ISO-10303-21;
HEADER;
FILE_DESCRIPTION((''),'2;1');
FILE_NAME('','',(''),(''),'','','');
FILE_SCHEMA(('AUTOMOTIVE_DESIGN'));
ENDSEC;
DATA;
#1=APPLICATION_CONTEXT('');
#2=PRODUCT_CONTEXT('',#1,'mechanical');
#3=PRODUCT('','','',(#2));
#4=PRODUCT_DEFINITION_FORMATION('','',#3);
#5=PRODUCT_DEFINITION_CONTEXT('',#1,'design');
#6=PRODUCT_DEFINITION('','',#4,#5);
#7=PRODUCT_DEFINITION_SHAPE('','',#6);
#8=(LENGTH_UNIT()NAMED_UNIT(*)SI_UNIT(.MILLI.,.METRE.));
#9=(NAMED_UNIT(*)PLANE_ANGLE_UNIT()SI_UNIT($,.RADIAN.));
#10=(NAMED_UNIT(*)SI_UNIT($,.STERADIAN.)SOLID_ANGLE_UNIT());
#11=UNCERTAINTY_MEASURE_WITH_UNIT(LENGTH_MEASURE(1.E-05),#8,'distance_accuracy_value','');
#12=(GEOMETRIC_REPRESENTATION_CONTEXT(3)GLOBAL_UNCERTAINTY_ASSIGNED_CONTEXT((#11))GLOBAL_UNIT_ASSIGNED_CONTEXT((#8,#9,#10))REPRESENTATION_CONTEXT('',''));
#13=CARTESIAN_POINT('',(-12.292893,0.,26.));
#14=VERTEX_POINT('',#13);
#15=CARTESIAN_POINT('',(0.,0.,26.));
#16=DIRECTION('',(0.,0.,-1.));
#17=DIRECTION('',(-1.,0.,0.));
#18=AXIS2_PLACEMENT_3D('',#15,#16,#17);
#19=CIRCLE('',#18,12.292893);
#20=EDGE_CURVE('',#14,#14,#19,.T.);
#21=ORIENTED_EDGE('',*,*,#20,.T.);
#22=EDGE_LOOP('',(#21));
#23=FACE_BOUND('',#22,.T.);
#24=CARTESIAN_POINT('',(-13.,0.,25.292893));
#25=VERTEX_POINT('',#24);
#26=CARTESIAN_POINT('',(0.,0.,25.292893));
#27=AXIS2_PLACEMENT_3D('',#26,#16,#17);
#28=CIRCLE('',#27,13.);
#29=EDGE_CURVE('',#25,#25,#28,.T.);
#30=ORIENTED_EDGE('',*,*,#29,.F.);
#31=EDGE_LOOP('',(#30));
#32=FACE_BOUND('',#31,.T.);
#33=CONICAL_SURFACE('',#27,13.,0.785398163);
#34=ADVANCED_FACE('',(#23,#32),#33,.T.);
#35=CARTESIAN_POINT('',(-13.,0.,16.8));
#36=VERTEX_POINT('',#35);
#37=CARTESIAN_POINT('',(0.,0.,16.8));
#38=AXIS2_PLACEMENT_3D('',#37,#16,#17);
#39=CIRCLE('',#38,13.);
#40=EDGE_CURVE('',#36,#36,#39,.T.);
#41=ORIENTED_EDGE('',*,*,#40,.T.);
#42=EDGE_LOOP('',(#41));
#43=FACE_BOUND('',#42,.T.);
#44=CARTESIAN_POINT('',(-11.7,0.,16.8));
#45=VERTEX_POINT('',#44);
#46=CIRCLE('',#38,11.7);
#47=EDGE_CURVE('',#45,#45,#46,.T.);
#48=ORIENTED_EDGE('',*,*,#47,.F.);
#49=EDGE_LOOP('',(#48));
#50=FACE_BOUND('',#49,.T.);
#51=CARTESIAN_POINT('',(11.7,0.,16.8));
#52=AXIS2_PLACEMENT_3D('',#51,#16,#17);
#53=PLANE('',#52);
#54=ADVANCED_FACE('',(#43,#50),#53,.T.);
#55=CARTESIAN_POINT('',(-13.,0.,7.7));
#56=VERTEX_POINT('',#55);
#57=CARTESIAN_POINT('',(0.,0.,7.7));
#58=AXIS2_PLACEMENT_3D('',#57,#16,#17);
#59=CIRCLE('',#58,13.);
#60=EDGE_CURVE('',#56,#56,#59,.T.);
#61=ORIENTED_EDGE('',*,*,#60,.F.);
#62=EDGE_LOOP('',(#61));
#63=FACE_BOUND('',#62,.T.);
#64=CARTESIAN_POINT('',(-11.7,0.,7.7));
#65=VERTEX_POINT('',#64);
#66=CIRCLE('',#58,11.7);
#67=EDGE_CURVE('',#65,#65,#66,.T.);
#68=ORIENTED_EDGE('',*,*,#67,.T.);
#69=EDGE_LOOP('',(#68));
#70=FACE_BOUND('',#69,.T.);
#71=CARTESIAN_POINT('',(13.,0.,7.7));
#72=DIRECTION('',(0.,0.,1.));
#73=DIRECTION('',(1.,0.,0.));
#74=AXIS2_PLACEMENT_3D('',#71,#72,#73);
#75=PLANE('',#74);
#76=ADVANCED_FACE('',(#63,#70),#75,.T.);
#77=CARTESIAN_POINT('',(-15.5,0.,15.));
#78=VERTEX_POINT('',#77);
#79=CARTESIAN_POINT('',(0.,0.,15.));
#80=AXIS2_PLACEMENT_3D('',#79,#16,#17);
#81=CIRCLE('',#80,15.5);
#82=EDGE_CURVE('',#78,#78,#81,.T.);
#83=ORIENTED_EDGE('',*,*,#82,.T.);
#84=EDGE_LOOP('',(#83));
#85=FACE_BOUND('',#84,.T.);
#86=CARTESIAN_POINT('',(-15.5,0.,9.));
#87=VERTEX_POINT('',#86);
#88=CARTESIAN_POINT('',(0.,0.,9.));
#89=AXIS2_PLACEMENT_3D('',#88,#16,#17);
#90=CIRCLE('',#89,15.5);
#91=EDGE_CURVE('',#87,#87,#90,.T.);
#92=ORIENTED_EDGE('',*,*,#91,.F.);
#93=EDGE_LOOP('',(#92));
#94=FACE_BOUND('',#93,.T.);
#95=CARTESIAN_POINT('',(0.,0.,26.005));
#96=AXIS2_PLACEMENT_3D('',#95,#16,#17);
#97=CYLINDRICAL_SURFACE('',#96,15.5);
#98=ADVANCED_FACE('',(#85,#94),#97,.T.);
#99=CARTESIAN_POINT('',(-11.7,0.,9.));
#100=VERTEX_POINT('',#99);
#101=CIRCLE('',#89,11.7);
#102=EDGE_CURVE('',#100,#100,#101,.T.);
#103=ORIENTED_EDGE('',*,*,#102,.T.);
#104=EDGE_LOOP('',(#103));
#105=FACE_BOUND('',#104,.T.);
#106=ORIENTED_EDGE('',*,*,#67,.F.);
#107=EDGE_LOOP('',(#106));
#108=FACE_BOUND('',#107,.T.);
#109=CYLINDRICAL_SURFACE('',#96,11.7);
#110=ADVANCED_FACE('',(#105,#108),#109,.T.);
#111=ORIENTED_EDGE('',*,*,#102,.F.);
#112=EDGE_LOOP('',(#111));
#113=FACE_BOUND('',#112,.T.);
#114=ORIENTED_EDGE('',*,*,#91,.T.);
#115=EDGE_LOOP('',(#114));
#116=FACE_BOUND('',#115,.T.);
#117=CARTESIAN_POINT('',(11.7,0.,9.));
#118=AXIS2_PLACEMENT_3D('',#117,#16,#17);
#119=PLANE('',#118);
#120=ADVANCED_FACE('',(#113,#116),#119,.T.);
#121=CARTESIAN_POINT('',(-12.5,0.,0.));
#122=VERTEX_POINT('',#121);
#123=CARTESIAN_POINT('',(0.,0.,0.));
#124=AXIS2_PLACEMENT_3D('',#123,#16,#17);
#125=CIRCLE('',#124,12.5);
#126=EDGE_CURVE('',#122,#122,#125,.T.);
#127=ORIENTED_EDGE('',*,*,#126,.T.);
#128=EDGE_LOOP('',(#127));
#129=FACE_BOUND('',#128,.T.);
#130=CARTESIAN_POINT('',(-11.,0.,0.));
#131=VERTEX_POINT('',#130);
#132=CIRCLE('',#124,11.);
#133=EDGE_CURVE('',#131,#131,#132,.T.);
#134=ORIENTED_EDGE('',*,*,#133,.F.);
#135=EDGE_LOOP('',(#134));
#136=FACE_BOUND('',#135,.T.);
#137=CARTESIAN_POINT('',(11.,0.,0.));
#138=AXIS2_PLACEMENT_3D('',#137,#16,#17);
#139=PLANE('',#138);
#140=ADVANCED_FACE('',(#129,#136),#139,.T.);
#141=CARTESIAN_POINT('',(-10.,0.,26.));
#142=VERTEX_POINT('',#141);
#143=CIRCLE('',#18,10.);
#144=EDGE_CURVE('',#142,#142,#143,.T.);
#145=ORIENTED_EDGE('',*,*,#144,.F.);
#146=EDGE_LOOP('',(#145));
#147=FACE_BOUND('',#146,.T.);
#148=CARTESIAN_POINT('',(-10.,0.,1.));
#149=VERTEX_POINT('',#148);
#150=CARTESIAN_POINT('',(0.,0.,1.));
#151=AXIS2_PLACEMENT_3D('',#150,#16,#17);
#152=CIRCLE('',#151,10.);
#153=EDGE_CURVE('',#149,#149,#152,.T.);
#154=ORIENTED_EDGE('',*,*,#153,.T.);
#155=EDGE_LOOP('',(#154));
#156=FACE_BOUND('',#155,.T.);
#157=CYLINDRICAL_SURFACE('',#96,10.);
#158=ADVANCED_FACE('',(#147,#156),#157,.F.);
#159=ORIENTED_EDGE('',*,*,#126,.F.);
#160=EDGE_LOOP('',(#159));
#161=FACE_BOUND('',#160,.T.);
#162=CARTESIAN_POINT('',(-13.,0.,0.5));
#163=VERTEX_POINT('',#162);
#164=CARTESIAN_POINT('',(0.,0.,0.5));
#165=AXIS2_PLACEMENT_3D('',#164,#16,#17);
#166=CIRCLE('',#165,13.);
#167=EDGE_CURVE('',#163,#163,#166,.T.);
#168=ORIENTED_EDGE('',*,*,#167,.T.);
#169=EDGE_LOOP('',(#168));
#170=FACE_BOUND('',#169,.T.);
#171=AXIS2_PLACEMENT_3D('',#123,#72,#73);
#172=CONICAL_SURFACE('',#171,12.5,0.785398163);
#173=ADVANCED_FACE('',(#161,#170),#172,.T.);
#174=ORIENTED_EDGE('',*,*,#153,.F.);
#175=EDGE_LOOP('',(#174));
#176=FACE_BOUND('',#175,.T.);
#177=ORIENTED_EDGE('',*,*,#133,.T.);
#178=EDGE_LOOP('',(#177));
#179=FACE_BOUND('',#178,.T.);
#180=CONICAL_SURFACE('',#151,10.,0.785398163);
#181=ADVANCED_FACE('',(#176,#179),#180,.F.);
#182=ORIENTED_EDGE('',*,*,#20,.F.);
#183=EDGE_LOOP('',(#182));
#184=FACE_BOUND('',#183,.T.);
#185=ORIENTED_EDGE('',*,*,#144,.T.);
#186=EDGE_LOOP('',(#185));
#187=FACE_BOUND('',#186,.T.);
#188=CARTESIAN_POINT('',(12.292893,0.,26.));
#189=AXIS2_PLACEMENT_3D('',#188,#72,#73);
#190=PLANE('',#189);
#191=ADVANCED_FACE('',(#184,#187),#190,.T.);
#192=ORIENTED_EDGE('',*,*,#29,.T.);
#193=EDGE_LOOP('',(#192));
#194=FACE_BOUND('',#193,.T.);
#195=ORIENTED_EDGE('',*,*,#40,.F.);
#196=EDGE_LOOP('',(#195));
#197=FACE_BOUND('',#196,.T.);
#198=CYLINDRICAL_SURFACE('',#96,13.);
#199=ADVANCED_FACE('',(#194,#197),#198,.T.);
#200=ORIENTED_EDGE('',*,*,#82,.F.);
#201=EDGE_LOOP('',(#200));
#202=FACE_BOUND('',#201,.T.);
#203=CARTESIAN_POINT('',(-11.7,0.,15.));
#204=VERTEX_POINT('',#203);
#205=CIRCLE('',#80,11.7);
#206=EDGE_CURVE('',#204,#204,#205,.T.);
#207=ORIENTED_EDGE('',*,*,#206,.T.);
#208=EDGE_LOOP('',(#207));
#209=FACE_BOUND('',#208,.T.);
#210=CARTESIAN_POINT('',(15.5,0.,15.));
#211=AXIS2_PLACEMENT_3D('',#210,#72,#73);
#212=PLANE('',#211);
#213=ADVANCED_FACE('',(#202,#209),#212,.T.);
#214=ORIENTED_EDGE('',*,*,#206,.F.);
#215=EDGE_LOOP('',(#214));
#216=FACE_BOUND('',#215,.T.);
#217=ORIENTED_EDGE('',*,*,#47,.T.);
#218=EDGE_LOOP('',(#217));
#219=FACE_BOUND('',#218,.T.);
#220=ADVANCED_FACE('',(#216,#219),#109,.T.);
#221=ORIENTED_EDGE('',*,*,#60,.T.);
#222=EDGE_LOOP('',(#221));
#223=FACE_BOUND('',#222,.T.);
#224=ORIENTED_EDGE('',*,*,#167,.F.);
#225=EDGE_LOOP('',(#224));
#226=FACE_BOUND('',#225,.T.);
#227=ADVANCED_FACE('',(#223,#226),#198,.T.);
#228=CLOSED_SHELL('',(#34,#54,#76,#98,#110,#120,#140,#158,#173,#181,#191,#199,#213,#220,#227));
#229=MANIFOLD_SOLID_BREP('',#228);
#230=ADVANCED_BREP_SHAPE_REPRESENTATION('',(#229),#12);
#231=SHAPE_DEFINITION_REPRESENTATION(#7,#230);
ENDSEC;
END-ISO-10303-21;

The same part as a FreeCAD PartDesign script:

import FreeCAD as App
import Part
import Sketcher
Q = App.Units.Quantity


def add_polygon(sketch, points):
    """Adds a closed chain of lines whose ends are joined by coincident constraints."""
    first, n = sketch.GeometryCount, len(points)
    for a, b in zip(points, points[1:] + points[:1]):
        sketch.addGeometry(Part.LineSegment(App.Vector(*a, 0), App.Vector(*b, 0)), False)
    for i in range(n):
        sketch.addConstraint(Sketcher.Constraint("Coincident", first + i, 2, first + (i + 1) % n, 1))

doc = App.newDocument("Part")
body = doc.addObject("PartDesign::Body", "Body")

sketch1 = body.newObject("Sketcher::SketchObject", "Sketch")
sketch1.AttachmentSupport = (doc.getObject("XZ_Plane"), [""])
sketch1.MapMode = "FlatFace"
add_polygon(sketch1, [(11.7, 16.8), (13, 16.8), (13, 25.3), (12.3, 26), (10, 26), (10, 1), (11, 0), (12.5, 0), (13, 0.5), (13, 7.7), (11.7, 7.7), (11.7, 9), (15.5, 9), (15.5, 15), (11.7, 15)])
sketch1.addConstraint([
    Sketcher.Constraint("Horizontal", 0),
    Sketcher.Constraint("Vertical", 1),
    Sketcher.Constraint("Horizontal", 3),
    Sketcher.Constraint("Vertical", 4),
    Sketcher.Constraint("Horizontal", 6),
    Sketcher.Constraint("Vertical", 8),
    Sketcher.Constraint("Horizontal", 9),
    Sketcher.Constraint("Vertical", 10),
    Sketcher.Constraint("Horizontal", 11),
    Sketcher.Constraint("Vertical", 12),
    Sketcher.Constraint("Horizontal", 13),
    Sketcher.Constraint("Vertical", 14),
    Sketcher.Constraint("PointOnObject", 5, 2, -1),
    Sketcher.Constraint("Parallel", 2, 5),
    Sketcher.Constraint("Perpendicular", 5, 7),
    Sketcher.Constraint("Vertical", 1, 2, 7, 2),
    Sketcher.Constraint("Vertical", 10, 2, 13, 2),
    Sketcher.Constraint("Equal", 9, 10),
    Sketcher.Constraint("DistanceY", 4, 2, 4, 1, Q("25 mm")),
    Sketcher.Constraint("DistanceY", 12, 1, 12, 2, Q("6 mm")),
    Sketcher.Constraint("Angle", 2, Q("135 deg")),
    Sketcher.Constraint("Distance", 2, Q("1 mm")),
    Sketcher.Constraint("DistanceX", 0, 1, 0, 2, Q("1.3 mm")),
    Sketcher.Constraint("DistanceX", 6, 1, 6, 2, Q("1.5 mm")),
    Sketcher.Constraint("DistanceX", 11, 1, 11, 2, Q("3.8 mm")),
    Sketcher.Constraint("DistanceY", 8, 1, 8, 2, Q("7.2 mm")),
    Sketcher.Constraint("DistanceY", 14, 1, 14, 2, Q("1.8 mm")),
    Sketcher.Constraint("DistanceX", -1, 1, 0, 2, Q("13 mm")),
    Sketcher.Constraint("DistanceY", -1, 1, 2, 2, Q("26 mm")),
    Sketcher.Constraint("DistanceX", -1, 1, 3, 2, Q("10 mm")),
])
revolution = body.newObject("PartDesign::Revolution", "Revolution")
revolution.Profile = sketch1
revolution.ReferenceAxis = (sketch1, ["V_Axis"])
revolution.Angle = 360

doc.recompute()
